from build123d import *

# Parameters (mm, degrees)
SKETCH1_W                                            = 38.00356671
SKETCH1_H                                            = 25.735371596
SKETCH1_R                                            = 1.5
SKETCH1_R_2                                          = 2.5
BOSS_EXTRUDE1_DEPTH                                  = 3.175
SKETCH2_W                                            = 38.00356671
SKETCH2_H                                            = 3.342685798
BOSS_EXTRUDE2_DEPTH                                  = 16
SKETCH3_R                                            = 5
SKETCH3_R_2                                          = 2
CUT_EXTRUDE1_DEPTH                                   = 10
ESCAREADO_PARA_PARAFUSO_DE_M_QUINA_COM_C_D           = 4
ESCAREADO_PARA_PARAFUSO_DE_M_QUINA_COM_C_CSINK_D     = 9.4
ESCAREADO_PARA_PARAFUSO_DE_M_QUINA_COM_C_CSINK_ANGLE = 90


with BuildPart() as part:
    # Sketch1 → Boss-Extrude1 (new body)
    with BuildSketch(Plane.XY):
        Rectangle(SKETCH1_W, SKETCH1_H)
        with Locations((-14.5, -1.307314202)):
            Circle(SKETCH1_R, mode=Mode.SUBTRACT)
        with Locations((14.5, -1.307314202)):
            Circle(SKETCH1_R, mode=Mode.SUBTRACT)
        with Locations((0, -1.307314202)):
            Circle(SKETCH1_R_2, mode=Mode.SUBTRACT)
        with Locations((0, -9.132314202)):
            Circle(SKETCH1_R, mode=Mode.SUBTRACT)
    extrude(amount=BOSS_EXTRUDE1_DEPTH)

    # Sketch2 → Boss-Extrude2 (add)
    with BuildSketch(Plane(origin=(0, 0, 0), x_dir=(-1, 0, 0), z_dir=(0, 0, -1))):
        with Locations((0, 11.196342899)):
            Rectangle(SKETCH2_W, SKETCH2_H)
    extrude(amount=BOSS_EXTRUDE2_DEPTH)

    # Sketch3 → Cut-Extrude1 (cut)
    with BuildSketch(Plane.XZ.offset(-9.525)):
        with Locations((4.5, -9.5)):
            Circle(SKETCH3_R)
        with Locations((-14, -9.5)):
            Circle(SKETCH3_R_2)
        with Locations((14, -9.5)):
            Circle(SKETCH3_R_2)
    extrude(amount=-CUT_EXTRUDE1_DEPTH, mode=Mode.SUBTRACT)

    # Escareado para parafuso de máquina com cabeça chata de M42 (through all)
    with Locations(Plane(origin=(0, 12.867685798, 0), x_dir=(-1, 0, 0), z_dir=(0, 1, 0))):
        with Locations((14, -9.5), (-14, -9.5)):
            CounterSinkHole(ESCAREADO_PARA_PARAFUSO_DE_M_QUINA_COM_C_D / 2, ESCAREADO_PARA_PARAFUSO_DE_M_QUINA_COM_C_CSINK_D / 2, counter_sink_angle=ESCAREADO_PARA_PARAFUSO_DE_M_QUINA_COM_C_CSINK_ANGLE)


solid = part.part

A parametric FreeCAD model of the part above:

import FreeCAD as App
import Part
import Sketcher
from FreeCAD import Vector
Q = App.Units.Quantity

doc = App.newDocument("Part")
body = doc.addObject("PartDesign::Body", "Body")

# Sketch on XY plane
sketch1 = doc.addObject("Sketcher::SketchObject", "Sketch")
body.addObject(sketch1)
sketch1.AttachmentSupport = (doc.XY_Plane, [""])
sketch1.MapMode = "FlatFace"
sketch1.addGeometry(Part.LineSegment(Vector(-19.001783, 12.867686, 0), Vector(-19.001783, -12.867686, 0)), False)
sketch1.addGeometry(Part.LineSegment(Vector(-19.001783, -12.867686, 0), Vector(19.001783, -12.867686, 0)), False)
sketch1.addGeometry(Part.LineSegment(Vector(19.001783, -12.867686, 0), Vector(19.001783, 12.867686, 0)), False)
sketch1.addGeometry(Part.LineSegment(Vector(19.001783, 12.867686, 0), Vector(-19.001783, 12.867686, 0)), False)
sketch1.addGeometry(Part.Circle(Vector(0, -9.132314, 0), Vector(0, 0, 1), 1.5), False)
sketch1.addGeometry(Part.Circle(Vector(-14.5, -1.307314, 0), Vector(0, 0, 1), 1.5), False)
sketch1.addGeometry(Part.Circle(Vector(0, -1.307314, 0), Vector(0, 0, 1), 2.5), False)
sketch1.addGeometry(Part.Circle(Vector(14.5, -1.307314, 0), Vector(0, 0, 1), 1.5), False)
sketch1.addConstraint(Sketcher.Constraint("Coincident", 0, 2, 1, 1))
sketch1.addConstraint(Sketcher.Constraint("Coincident", 1, 2, 2, 1))
sketch1.addConstraint(Sketcher.Constraint("Coincident", 2, 2, 3, 1))
sketch1.addConstraint(Sketcher.Constraint("Coincident", 3, 2, 0, 1))
sketch1.addConstraint(Sketcher.Constraint("Vertical", 0))
sketch1.addConstraint(Sketcher.Constraint("Horizontal", 1))
sketch1.addConstraint(Sketcher.Constraint("Vertical", 2))
sketch1.addConstraint(Sketcher.Constraint("Horizontal", 3))
sketch1.addConstraint(Sketcher.Constraint("Equal", 4, 5))
sketch1.addConstraint(Sketcher.Constraint("Equal", 5, 7))
sketch1.addConstraint(Sketcher.Constraint("Symmetric", 0, 2, 2, 2, -1, 1))
sketch1.addConstraint(Sketcher.Constraint("Symmetric", 5, 3, 7, 3, -2))
sketch1.addConstraint(Sketcher.Constraint("PointOnObject", 4, 3, -2))
sketch1.addConstraint(Sketcher.Constraint("PointOnObject", 6, 3, -2))
sketch1.addConstraint(Sketcher.Constraint("Horizontal", 5, 3, 6, 3))
sketch1.addConstraint(Sketcher.Constraint("Diameter", 4, Q("3 mm")))
sketch1.addConstraint(Sketcher.Constraint("Diameter", 6, Q("5 mm")))
sketch1.addConstraint(Sketcher.Constraint("DistanceX", 5, 3, 7, 3, Q("29 mm")))
sketch1.addConstraint(Sketcher.Constraint("DistanceY", 4, 3, 2, 2, Q("22 mm")))
sketch1.addConstraint(Sketcher.Constraint("DistanceY", 4, 3, 5, 3, Q("7.825 mm")))
sketch1.addConstraint(Sketcher.Constraint("DistanceY", 0, 2, 0, 1, Q("25.735372 mm")))
sketch1.addConstraint(Sketcher.Constraint("DistanceX", 1, 1, 1, 2, Q("38.003567 mm")))
pad1 = doc.addObject("PartDesign::Pad", "Pad")
body.addObject(pad1)
pad1.Profile = sketch1
pad1.Length = 3.175

# Sketch on XY plane
sketch2 = doc.addObject("Sketcher::SketchObject", "Sketch001")
body.addObject(sketch2)
sketch2.AttachmentSupport = (doc.XY_Plane, [""])
sketch2.MapMode = "FlatFace"
sketch2.addGeometry(Part.LineSegment(Vector(19.001783, 12.867686, 0), Vector(19.001783, 9.525, 0)), False)
sketch2.addGeometry(Part.LineSegment(Vector(19.001783, 9.525, 0), Vector(-19.001783, 9.525, 0)), False)
sketch2.addGeometry(Part.LineSegment(Vector(-19.001783, 9.525, 0), Vector(-19.001783, 12.867686, 0)), False)
sketch2.addGeometry(Part.LineSegment(Vector(-19.001783, 12.867686, 0), Vector(19.001783, 12.867686, 0)), False)
sketch2.addConstraint(Sketcher.Constraint("Coincident", 0, 2, 1, 1))
sketch2.addConstraint(Sketcher.Constraint("Coincident", 1, 2, 2, 1))
sketch2.addConstraint(Sketcher.Constraint("Coincident", 2, 2, 3, 1))
sketch2.addConstraint(Sketcher.Constraint("Coincident", 3, 2, 0, 1))
sketch2.addConstraint(Sketcher.Constraint("Vertical", 0))
sketch2.addConstraint(Sketcher.Constraint("Horizontal", 1))
sketch2.addConstraint(Sketcher.Constraint("Vertical", 2))
sketch2.addConstraint(Sketcher.Constraint("Horizontal", 3))
sketch2.addConstraint(Sketcher.Constraint("DistanceY", -1, 1, 0, 2, Q("9.525 mm")))
sketch2.addConstraint(Sketcher.Constraint("DistanceX", 1, 2, 1, 1, Q("38.003567 mm")))
sketch2.addConstraint(Sketcher.Constraint("DistanceY", 0, 2, 0, 1, Q("3.342686 mm")))
sketch2.addConstraint(Sketcher.Constraint("DistanceX", -1, 1, 0, 2, Q("19.001783 mm")))
pad2 = doc.addObject("PartDesign::Pad", "Pad001")
body.addObject(pad2)
pad2.Profile = sketch2
pad2.Length = 16
pad2.Reversed = True

# Sketch on XZ plane
sketch3 = doc.addObject("Sketcher::SketchObject", "Sketch002")
body.addObject(sketch3)
sketch3.AttachmentSupport = (doc.XZ_Plane, [""])
sketch3.MapMode = "FlatFace"
sketch3.AttachmentOffset = App.Placement(Vector(0, 0, -9.525), App.Rotation())
sketch3.addGeometry(Part.Circle(Vector(4.5, -9.5, 0), Vector(0, 0, 1), 5), False)
sketch3.addGeometry(Part.Circle(Vector(-14, -9.5, 0), Vector(0, 0, 1), 2), False)
sketch3.addGeometry(Part.Circle(Vector(14, -9.5, 0), Vector(0, 0, 1), 2), False)
sketch3.addConstraint(Sketcher.Constraint("Equal", 1, 2))
sketch3.addConstraint(Sketcher.Constraint("Symmetric", 1, 3, 2, 3, -2))
sketch3.addConstraint(Sketcher.Constraint("Horizontal", 0, 3, 1, 3))
sketch3.addConstraint(Sketcher.Constraint("Diameter", 0, Q("10 mm")))
sketch3.addConstraint(Sketcher.Constraint("Diameter", 1, Q("4 mm")))
sketch3.addConstraint(Sketcher.Constraint("DistanceX", 1, 3, -1, 1, Q("14 mm")))
sketch3.addConstraint(Sketcher.Constraint("DistanceX", -1, 1, 0, 3, Q("4.5 mm")))
sketch3.addConstraint(Sketcher.Constraint("DistanceY", 0, 3, -1, 1, Q("9.5 mm")))
pocket1 = doc.addObject("PartDesign::Pocket", "Pocket")
body.addObject(pocket1)
pocket1.Profile = sketch3
pocket1.Length = 10

# Sketch on XZ plane
sketch4 = doc.addObject("Sketcher::SketchObject", "Sketch003")
body.addObject(sketch4)
sketch4.AttachmentSupport = (doc.XZ_Plane, [""])
sketch4.MapMode = "FlatFace"
sketch4.AttachmentOffset = App.Placement(Vector(0, 0, -12.867686), App.Rotation())
sketch4.addGeometry(Part.Circle(Vector(-14, -9.5, 0), Vector(0, 0, 1), 2), False)
sketch4.addGeometry(Part.Circle(Vector(14, -9.5, 0), Vector(0, 0, 1), 2), False)
sketch4.addConstraint(Sketcher.Constraint("Equal", 0, 1))
sketch4.addConstraint(Sketcher.Constraint("Symmetric", 0, 3, 1, 3, -2))
sketch4.addConstraint(Sketcher.Constraint("Diameter", 0, Q("4 mm")))
sketch4.addConstraint(Sketcher.Constraint("DistanceX", 0, 3, -1, 1, Q("14 mm")))
sketch4.addConstraint(Sketcher.Constraint("DistanceY", 0, 3, -1, 1, Q("9.5 mm")))
doc.recompute()
hole = doc.addObject("PartDesign::Hole", "Hole")
body.addObject(hole)
hole.Profile = sketch4
hole.ThreadType = "None"
hole.Diameter = 4
hole.DepthType = "ThroughAll"
hole.HoleCutType = "Countersink"
hole.HoleCutDiameter = 9.4
hole.HoleCutCountersinkAngle = 90
hole.Reversed = True

doc.recompute()
